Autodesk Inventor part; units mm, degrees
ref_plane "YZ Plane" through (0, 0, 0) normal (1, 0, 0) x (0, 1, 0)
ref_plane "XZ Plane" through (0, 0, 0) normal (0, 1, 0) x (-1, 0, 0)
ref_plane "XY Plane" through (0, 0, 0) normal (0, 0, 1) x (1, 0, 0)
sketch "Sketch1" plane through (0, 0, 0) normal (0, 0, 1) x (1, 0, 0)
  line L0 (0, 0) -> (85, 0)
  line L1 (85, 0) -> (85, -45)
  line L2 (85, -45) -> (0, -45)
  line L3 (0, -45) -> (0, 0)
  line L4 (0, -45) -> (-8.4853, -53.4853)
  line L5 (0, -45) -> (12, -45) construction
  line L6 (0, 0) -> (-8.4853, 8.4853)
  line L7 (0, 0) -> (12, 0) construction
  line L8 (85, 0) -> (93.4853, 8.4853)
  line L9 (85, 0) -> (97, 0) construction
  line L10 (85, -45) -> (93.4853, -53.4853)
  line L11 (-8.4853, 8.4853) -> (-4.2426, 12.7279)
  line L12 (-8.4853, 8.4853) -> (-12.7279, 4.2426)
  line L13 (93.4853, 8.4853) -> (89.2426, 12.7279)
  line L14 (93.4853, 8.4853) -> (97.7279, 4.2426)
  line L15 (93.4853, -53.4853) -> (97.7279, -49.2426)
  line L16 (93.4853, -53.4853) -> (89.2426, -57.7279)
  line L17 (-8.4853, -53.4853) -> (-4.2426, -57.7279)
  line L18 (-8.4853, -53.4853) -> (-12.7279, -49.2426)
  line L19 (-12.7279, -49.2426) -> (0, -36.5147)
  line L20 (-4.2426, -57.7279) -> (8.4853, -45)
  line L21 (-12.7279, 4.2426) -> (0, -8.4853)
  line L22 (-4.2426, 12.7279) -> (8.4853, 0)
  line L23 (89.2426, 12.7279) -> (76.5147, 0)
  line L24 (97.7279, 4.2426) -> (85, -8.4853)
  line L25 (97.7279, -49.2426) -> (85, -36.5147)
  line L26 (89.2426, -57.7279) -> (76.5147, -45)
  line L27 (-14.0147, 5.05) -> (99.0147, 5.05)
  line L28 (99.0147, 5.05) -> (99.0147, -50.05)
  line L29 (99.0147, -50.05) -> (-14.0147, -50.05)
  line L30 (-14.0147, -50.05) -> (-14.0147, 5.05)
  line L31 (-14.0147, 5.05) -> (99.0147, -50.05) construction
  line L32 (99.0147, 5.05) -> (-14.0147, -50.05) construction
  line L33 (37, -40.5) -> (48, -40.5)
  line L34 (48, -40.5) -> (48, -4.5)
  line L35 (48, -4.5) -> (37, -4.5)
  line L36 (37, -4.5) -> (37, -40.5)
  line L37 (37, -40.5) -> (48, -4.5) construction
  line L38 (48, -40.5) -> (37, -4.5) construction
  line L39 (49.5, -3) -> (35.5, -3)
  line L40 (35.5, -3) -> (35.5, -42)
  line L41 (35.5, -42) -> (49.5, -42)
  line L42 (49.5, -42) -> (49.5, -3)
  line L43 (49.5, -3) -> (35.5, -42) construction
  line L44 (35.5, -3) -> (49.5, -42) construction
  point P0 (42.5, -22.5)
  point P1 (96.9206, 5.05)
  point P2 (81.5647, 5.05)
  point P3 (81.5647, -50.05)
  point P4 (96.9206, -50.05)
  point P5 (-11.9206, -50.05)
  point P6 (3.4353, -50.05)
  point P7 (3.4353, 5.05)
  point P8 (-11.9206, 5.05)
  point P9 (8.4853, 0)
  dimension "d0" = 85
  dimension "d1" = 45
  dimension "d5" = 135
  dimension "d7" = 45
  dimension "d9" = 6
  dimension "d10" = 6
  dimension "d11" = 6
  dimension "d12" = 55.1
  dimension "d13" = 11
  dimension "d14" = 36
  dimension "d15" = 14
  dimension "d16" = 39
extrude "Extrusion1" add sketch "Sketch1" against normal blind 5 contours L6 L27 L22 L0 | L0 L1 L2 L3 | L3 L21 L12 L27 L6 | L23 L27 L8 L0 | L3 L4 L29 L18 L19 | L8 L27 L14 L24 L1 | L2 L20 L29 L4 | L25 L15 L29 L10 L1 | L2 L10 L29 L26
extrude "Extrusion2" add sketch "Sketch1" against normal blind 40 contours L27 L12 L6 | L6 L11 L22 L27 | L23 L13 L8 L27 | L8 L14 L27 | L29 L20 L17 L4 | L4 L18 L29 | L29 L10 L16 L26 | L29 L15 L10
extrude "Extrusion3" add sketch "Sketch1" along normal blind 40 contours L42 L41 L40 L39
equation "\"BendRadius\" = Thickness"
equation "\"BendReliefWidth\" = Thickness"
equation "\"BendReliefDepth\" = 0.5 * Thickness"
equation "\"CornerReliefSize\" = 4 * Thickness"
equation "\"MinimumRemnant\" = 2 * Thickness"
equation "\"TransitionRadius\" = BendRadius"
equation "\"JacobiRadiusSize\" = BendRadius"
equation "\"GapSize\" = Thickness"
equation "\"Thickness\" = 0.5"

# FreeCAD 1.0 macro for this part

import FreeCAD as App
import Part
import Sketcher

V = App.Vector
Q = App.Units.Quantity

doc = App.newDocument("Part")
params = doc.addObject("Spreadsheet::Sheet", "Params")
for row, (alias, value) in enumerate([
    ("sketch1_width", "14 mm"),
    ("sketch1_height", "39 mm"),
    ("sketch1_length", "18 mm"),
    ("pad1_length", "5 mm"),
    ("sketch2_length", "6 mm"),
    ("pad2_length", "40 mm"),
    ("sketch3_width", "14 mm"),
    ("sketch3_width2", "11 mm"),
    ("sketch3_height", "39 mm"),
    ("sketch3_height2", "36 mm"),
    ("pad3_length", "40 mm"),
], start=1):
    params.set(f"A{row}", alias)
    params.set(f"B{row}", "=" + value)
    params.setAlias(f"B{row}", alias)

body = doc.addObject("PartDesign::Body", "Body")
body.AllowCompound = True

sketch1 = body.newObject("Sketcher::SketchObject", "Sketch")
sketch1.AttachmentSupport = (doc.getObject("XY_Plane"), [""])
sketch1.MapMode = "FlatFace"
sketch1.addGeometry(Part.LineSegment(V(3.4, 5, 0), V(-11.9, 5, 0)), False)
sketch1.addGeometry(Part.LineSegment(V(-11.9, 5, 0), V(-12.7, 4.2, 0)), False)
sketch1.addGeometry(Part.LineSegment(V(-12.7, 4.2, 0), V(0, -8.5, 0)), False)
sketch1.addGeometry(Part.LineSegment(V(0, -8.5, 0), V(0, -36.5, 0)), False)
sketch1.addGeometry(Part.LineSegment(V(0, -36.5, 0), V(-12.7, -49.2, 0)), False)
sketch1.addGeometry(Part.LineSegment(V(-12.7, -49.2, 0), V(-11.9, -50, 0)), False)
sketch1.addGeometry(Part.LineSegment(V(-11.9, -50, 0), V(3.4, -50, 0)), False)
sketch1.addGeometry(Part.LineSegment(V(3.4, -50, 0), V(8.5, -45, 0)), False)
sketch1.addGeometry(Part.LineSegment(V(8.5, -45, 0), V(76.5, -45, 0)), False)
sketch1.addGeometry(Part.LineSegment(V(76.5, -45, 0), V(81.6, -50, 0)), False)
sketch1.addGeometry(Part.LineSegment(V(81.6, -50, 0), V(96.9, -50, 0)), False)
sketch1.addGeometry(Part.LineSegment(V(96.9, -50, 0), V(97.7, -49.2, 0)), False)
sketch1.addGeometry(Part.LineSegment(V(97.7, -49.2, 0), V(85, -36.5, 0)), False)
sketch1.addGeometry(Part.LineSegment(V(85, -36.5, 0), V(85, -8.5, 0)), False)
sketch1.addGeometry(Part.LineSegment(V(85, -8.5, 0), V(97.7, 4.2, 0)), False)
sketch1.addGeometry(Part.LineSegment(V(97.7, 4.2, 0), V(96.9, 5, 0)), False)
sketch1.addGeometry(Part.LineSegment(V(96.9, 5, 0), V(81.6, 5, 0)), False)
sketch1.addGeometry(Part.LineSegment(V(81.6, 5, 0), V(76.5, 0, 0)), False)
sketch1.addGeometry(Part.LineSegment(V(76.5, 0, 0), V(8.5, 0, 0)), False)
sketch1.addGeometry(Part.LineSegment(V(8.5, 0, 0), V(3.4, 5, 0)), False)
sketch1.addGeometry(Part.LineSegment(V(49.5, -3, 0), V(49.5, -42, 0)), False)
sketch1.addGeometry(Part.LineSegment(V(49.5, -42, 0), V(35.5, -42, 0)), False)
sketch1.addGeometry(Part.LineSegment(V(35.5, -42, 0), V(35.5, -3, 0)), False)
sketch1.addGeometry(Part.LineSegment(V(35.5, -3, 0), V(49.5, -3, 0)), False)
sketch1.addConstraint(Sketcher.Constraint("Coincident", 0, 2, 1, 1))
sketch1.addConstraint(Sketcher.Constraint("Coincident", 1, 2, 2, 1))
sketch1.addConstraint(Sketcher.Constraint("Coincident", 2, 2, 3, 1))
sketch1.addConstraint(Sketcher.Constraint("Coincident", 3, 2, 4, 1))
sketch1.addConstraint(Sketcher.Constraint("Coincident", 4, 2, 5, 1))
sketch1.addConstraint(Sketcher.Constraint("Coincident", 5, 2, 6, 1))
sketch1.addConstraint(Sketcher.Constraint("Coincident", 6, 2, 7, 1))
sketch1.addConstraint(Sketcher.Constraint("Coincident", 7, 2, 8, 1))
sketch1.addConstraint(Sketcher.Constraint("Coincident", 8, 2, 9, 1))
sketch1.addConstraint(Sketcher.Constraint("Coincident", 9, 2, 10, 1))
sketch1.addConstraint(Sketcher.Constraint("Coincident", 10, 2, 11, 1))
sketch1.addConstraint(Sketcher.Constraint("Coincident", 11, 2, 12, 1))
sketch1.addConstraint(Sketcher.Constraint("Coincident", 12, 2, 13, 1))
sketch1.addConstraint(Sketcher.Constraint("Coincident", 13, 2, 14, 1))
sketch1.addConstraint(Sketcher.Constraint("Coincident", 14, 2, 15, 1))
sketch1.addConstraint(Sketcher.Constraint("Coincident", 15, 2, 16, 1))
sketch1.addConstraint(Sketcher.Constraint("Coincident", 16, 2, 17, 1))
sketch1.addConstraint(Sketcher.Constraint("Coincident", 17, 2, 18, 1))
sketch1.addConstraint(Sketcher.Constraint("Coincident", 18, 2, 19, 1))
sketch1.addConstraint(Sketcher.Constraint("Coincident", 19, 2, 0, 1))
sketch1.addConstraint(Sketcher.Constraint("Coincident", 20, 2, 21, 1))
sketch1.addConstraint(Sketcher.Constraint("Coincident", 21, 2, 22, 1))
sketch1.addConstraint(Sketcher.Constraint("Coincident", 22, 2, 23, 1))
sketch1.addConstraint(Sketcher.Constraint("Coincident", 23, 2, 20, 1))
sketch1.addConstraint(Sketcher.Constraint("Horizontal", 0))
sketch1.addConstraint(Sketcher.Constraint("Vertical", 3))
sketch1.addConstraint(Sketcher.Constraint("Horizontal", 6))
sketch1.addConstraint(Sketcher.Constraint("Horizontal", 8))
sketch1.addConstraint(Sketcher.Constraint("Horizontal", 10))
sketch1.addConstraint(Sketcher.Constraint("Vertical", 13))
sketch1.addConstraint(Sketcher.Constraint("Horizontal", 16))
sketch1.addConstraint(Sketcher.Constraint("Horizontal", 18))
sketch1.addConstraint(Sketcher.Constraint("Vertical", 20))
sketch1.addConstraint(Sketcher.Constraint("Horizontal", 21))
sketch1.addConstraint(Sketcher.Constraint("Vertical", 22))
sketch1.addConstraint(Sketcher.Constraint("Horizontal", 23))
sketch1.addConstraint(Sketcher.Constraint("PointOnObject", 2, 2, -2))
sketch1.addConstraint(Sketcher.Constraint("PointOnObject", 17, 2, -1))
sketch1.addConstraint(Sketcher.Constraint("Perpendicular", 1, 2))
sketch1.addConstraint(Sketcher.Constraint("Perpendicular", 2, 4))
sketch1.addConstraint(Sketcher.Constraint("Perpendicular", 4, 5))
sketch1.addConstraint(Sketcher.Constraint("Perpendicular", 5, 7))
sketch1.addConstraint(Sketcher.Constraint("Perpendicular", 7, 9))
sketch1.addConstraint(Sketcher.Constraint("Perpendicular", 9, 11))
sketch1.addConstraint(Sketcher.Constraint("Perpendicular", 11, 12))
sketch1.addConstraint(Sketcher.Constraint("Perpendicular", 12, 14))
sketch1.addConstraint(Sketcher.Constraint("Perpendicular", 14, 15))
sketch1.addConstraint(Sketcher.Constraint("Perpendicular", 15, 17))
sketch1.addConstraint(Sketcher.Constraint("Perpendicular", 17, 19))
sketch1.addConstraint(Sketcher.Constraint("Horizontal", 6, 2, 9, 2))
sketch1.addConstraint(Sketcher.Constraint("Horizontal", 4, 2, 11, 2))
sketch1.addConstraint(Sketcher.Constraint("Horizontal", 3, 2, 12, 2))
sketch1.addConstraint(Sketcher.Constraint("Horizontal", 2, 2, 13, 2))
sketch1.addConstraint(Sketcher.Constraint("Horizontal", 1, 2, 14, 2))
sketch1.addConstraint(Sketcher.Constraint("Horizontal", 0, 2, 15, 2))
sketch1.addConstraint(Sketcher.Constraint("Vertical", 1, 2, 4, 2))
sketch1.addConstraint(Sketcher.Constraint("Vertical", 0, 2, 5, 2))
sketch1.addConstraint(Sketcher.Constraint("Vertical", 11, 2, 14, 2))
sketch1.addConstraint(Sketcher.Constraint("Vertical", 9, 2, 16, 2))
sketch1.addConstraint(Sketcher.Constraint("Vertical", 8, 2, 17, 2))
sketch1.addConstraint(Sketcher.Constraint("Vertical", 7, 2, 18, 2))
sketch1.addConstraint(Sketcher.Constraint("Equal", 6, 10))
sketch1.addConstraint(Sketcher.Constraint("DistanceX", 21, 2, 21, 1, Q("14 mm")))
sketch1.addConstraint(Sketcher.Constraint("DistanceY", 20, 2, 20, 1, Q("39 mm")))
sketch1.addConstraint(Sketcher.Constraint("DistanceY", 7, 2, -1, 1, Q("45 mm")))
sketch1.addConstraint(Sketcher.Constraint("DistanceX", -1, 1, 12, 2, Q("85 mm")))
sketch1.addConstraint(Sketcher.Constraint("DistanceY", 5, 2, 0, 2, Q("55.1 mm")))
sketch1.addConstraint(Sketcher.Constraint("Distance", 2, Q("18 mm")))
sketch1.addConstraint(Sketcher.Constraint("DistanceY", 20, 2, -1, 1, Q("42 mm")))
sketch1.addConstraint(Sketcher.Constraint("DistanceX", -1, 1, 20, 2, Q("49.5 mm")))
sketch1.addConstraint(Sketcher.Constraint("DistanceX", 0, 2, 0, 1, Q("15.3558 mm")))
sketch1.addConstraint(Sketcher.Constraint("DistanceX", 8, 1, 8, 2, Q("68.0294 mm")))
sketch1.setExpression("Constraints[62]", "Params.sketch1_width")
sketch1.setExpression("Constraints[63]", "Params.sketch1_height")
sketch1.setExpression("Constraints[67]", "Params.sketch1_length")
pad1 = body.newObject("PartDesign::Pad", "Pad")
pad1.Profile = sketch1
pad1.setExpression("Length", "Params.pad1_length")
pad1.Reversed = True

sketch2 = body.newObject("Sketcher::SketchObject", "Sketch001")
sketch2.AttachmentSupport = (doc.getObject("XY_Plane"), [""])
sketch2.MapMode = "FlatFace"
sketch2.addGeometry(Part.LineSegment(V(-11.9, 5, 0), V(3.4, 5, 0)), False)
sketch2.addGeometry(Part.LineSegment(V(3.4, 5, 0), V(-4.2, 12.7, 0)), False)
sketch2.addGeometry(Part.LineSegment(V(-4.2, 12.7, 0), V(-8.5, 8.5, 0)), False)
sketch2.addGeometry(Part.LineSegment(V(-8.5, 8.5, 0), V(-11.9, 5, 0)), False)
sketch2.addGeometry(Part.LineSegment(V(89.2, 12.7, 0), V(81.6, 5, 0)), False)
sketch2.addGeometry(Part.LineSegment(V(81.6, 5, 0), V(96.9, 5, 0)), False)
sketch2.addGeometry(Part.LineSegment(V(96.9, 5, 0), V(93.5, 8.5, 0)), False)
sketch2.addGeometry(Part.LineSegment(V(93.5, 8.5, 0), V(89.2, 12.7, 0)), False)
sketch2.addGeometry(Part.LineSegment(V(3.4, -50, 0), V(-11.9, -50, 0)), False)
sketch2.addGeometry(Part.LineSegment(V(-11.9, -50, 0), V(-8.5, -53.5, 0)), False)
sketch2.addGeometry(Part.LineSegment(V(-8.5, -53.5, 0), V(-4.2, -57.7, 0)), False)
sketch2.addGeometry(Part.LineSegment(V(-4.2, -57.7, 0), V(3.4, -50, 0)), False)
sketch2.addGeometry(Part.LineSegment(V(81.6, -50, 0), V(89.2, -57.7, 0)), False)
sketch2.addGeometry(Part.LineSegment(V(89.2, -57.7, 0), V(93.5, -53.5, 0)), False)
sketch2.addGeometry(Part.LineSegment(V(93.5, -53.5, 0), V(96.9, -50, 0)), False)
sketch2.addGeometry(Part.LineSegment(V(96.9, -50, 0), V(81.6, -50, 0)), False)
sketch2.addConstraint(Sketcher.Constraint("Coincident", 0, 2, 1, 1))
sketch2.addConstraint(Sketcher.Constraint("Coincident", 1, 2, 2, 1))
sketch2.addConstraint(Sketcher.Constraint("Coincident", 2, 2, 3, 1))
sketch2.addConstraint(Sketcher.Constraint("Coincident", 3, 2, 0, 1))
sketch2.addConstraint(Sketcher.Constraint("Coincident", 4, 2, 5, 1))
sketch2.addConstraint(Sketcher.Constraint("Coincident", 5, 2, 6, 1))
sketch2.addConstraint(Sketcher.Constraint("Coincident", 6, 2, 7, 1))
sketch2.addConstraint(Sketcher.Constraint("Coincident", 7, 2, 4, 1))
sketch2.addConstraint(Sketcher.Constraint("Coincident", 8, 2, 9, 1))
sketch2.addConstraint(Sketcher.Constraint("Coincident", 9, 2, 10, 1))
sketch2.addConstraint(Sketcher.Constraint("Coincident", 10, 2, 11, 1))
sketch2.addConstraint(Sketcher.Constraint("Coincident", 11, 2, 8, 1))
sketch2.addConstraint(Sketcher.Constraint("Coincident", 12, 2, 13, 1))
sketch2.addConstraint(Sketcher.Constraint("Coincident", 13, 2, 14, 1))
sketch2.addConstraint(Sketcher.Constraint("Coincident", 14, 2, 15, 1))
sketch2.addConstraint(Sketcher.Constraint("Coincident", 15, 2, 12, 1))
sketch2.addConstraint(Sketcher.Constraint("Horizontal", 0))
sketch2.addConstraint(Sketcher.Constraint("Horizontal", 5))
sketch2.addConstraint(Sketcher.Constraint("Horizontal", 8))
sketch2.addConstraint(Sketcher.Constraint("Horizontal", 15))
sketch2.addConstraint(Sketcher.Constraint("Perpendicular", 1, 2))
sketch2.addConstraint(Sketcher.Constraint("Parallel", 2, 3))
sketch2.addConstraint(Sketcher.Constraint("Parallel", 3, 4))
sketch2.addConstraint(Sketcher.Constraint("Perpendicular", 4, 6))
sketch2.addConstraint(Sketcher.Constraint("Parallel", 6, 7))
sketch2.addConstraint(Sketcher.Constraint("Parallel", 7, 9))
sketch2.addConstraint(Sketcher.Constraint("Parallel", 9, 10))
sketch2.addConstraint(Sketcher.Constraint("Perpendicular", 10, 11))
sketch2.addConstraint(Sketcher.Constraint("Perpendicular", 11, 12))
sketch2.addConstraint(Sketcher.Constraint("Perpendicular", 12, 13))
sketch2.addConstraint(Sketcher.Constraint("Parallel", 13, 14))
sketch2.addConstraint(Sketcher.Constraint("Horizontal", 3, 2, 4, 2))
sketch2.addConstraint(Sketcher.Constraint("Horizontal", 2, 2, 6, 2))
sketch2.addConstraint(Sketcher.Constraint("Horizontal", 1, 2, 7, 2))
sketch2.addConstraint(Sketcher.Constraint("Horizontal", 10, 2, 12, 2))
sketch2.addConstraint(Sketcher.Constraint("Horizontal", 9, 2, 13, 2))
sketch2.addConstraint(Sketcher.Constraint("Horizontal", 11, 2, 14, 2))
sketch2.addConstraint(Sketcher.Constraint("Vertical", 3, 2, 8, 2))
sketch2.addConstraint(Sketcher.Constraint("Vertical", 2, 2, 9, 2))
sketch2.addConstraint(Sketcher.Constraint("Vertical", 1, 2, 10, 2))
sketch2.addConstraint(Sketcher.Constraint("Vertical", 0, 2, 11, 2))
sketch2.addConstraint(Sketcher.Constraint("Vertical", 7, 2, 12, 2))
sketch2.addConstraint(Sketcher.Constraint("Distance", 2, Q("6 mm")))
sketch2.addConstraint(Sketcher.Constraint("DistanceY", 8, 2, 3, 2, Q("55.1 mm")))
sketch2.addConstraint(Sketcher.Constraint("DistanceY", -1, 1, 0, 2, Q("5.05 mm")))
sketch2.addConstraint(Sketcher.Constraint("DistanceX", 2, 2, 4, 2, Q("90.05 mm")))
sketch2.addConstraint(Sketcher.Constraint("DistanceX", 0, 1, 0, 2, Q("15.3558 mm")))
sketch2.addConstraint(Sketcher.Constraint("DistanceX", -1, 1, 0, 2, Q("3.4353 mm")))
sketch2.setExpression("Constraints[42]", "Params.sketch2_length")
pad2 = body.newObject("PartDesign::Pad", "Pad001")
pad2.Profile = sketch2
pad2.setExpression("Length", "Params.pad2_length")
pad2.Reversed = True

sketch3 = body.newObject("Sketcher::SketchObject", "Sketch002")
sketch3.AttachmentSupport = (doc.getObject("XY_Plane"), [""])
sketch3.MapMode = "FlatFace"
sketch3.addGeometry(Part.LineSegment(V(50, -42, 0), V(50, -3, 0)), False)
sketch3.addGeometry(Part.LineSegment(V(50, -3, 0), V(36, -3, 0)), False)
sketch3.addGeometry(Part.LineSegment(V(36, -3, 0), V(36, -42, 0)), False)
sketch3.addGeometry(Part.LineSegment(V(36, -42, 0), V(50, -42, 0)), False)
sketch3.addGeometry(Part.LineSegment(V(48, -40, 0), V(37, -40, 0)), False)
sketch3.addGeometry(Part.LineSegment(V(37, -40, 0), V(37, -4, 0)), False)
sketch3.addGeometry(Part.LineSegment(V(37, -4, 0), V(48, -4, 0)), False)
sketch3.addGeometry(Part.LineSegment(V(48, -4, 0), V(48, -40, 0)), False)
sketch3.addConstraint(Sketcher.Constraint("Coincident", 0, 2, 1, 1))
sketch3.addConstraint(Sketcher.Constraint("Coincident", 1, 2, 2, 1))
sketch3.addConstraint(Sketcher.Constraint("Coincident", 2, 2, 3, 1))
sketch3.addConstraint(Sketcher.Constraint("Coincident", 3, 2, 0, 1))
sketch3.addConstraint(Sketcher.Constraint("Coincident", 4, 2, 5, 1))
sketch3.addConstraint(Sketcher.Constraint("Coincident", 5, 2, 6, 1))
sketch3.addConstraint(Sketcher.Constraint("Coincident", 6, 2, 7, 1))
sketch3.addConstraint(Sketcher.Constraint("Coincident", 7, 2, 4, 1))
sketch3.addConstraint(Sketcher.Constraint("Vertical", 0))
sketch3.addConstraint(Sketcher.Constraint("Horizontal", 1))
sketch3.addConstraint(Sketcher.Constraint("Vertical", 2))
sketch3.addConstraint(Sketcher.Constraint("Horizontal", 3))
sketch3.addConstraint(Sketcher.Constraint("Horizontal", 4))
sketch3.addConstraint(Sketcher.Constraint("Vertical", 5))
sketch3.addConstraint(Sketcher.Constraint("Horizontal", 6))
sketch3.addConstraint(Sketcher.Constraint("Vertical", 7))
sketch3.addConstraint(Sketcher.Constraint("DistanceX", 1, 2, 1, 1, Q("14 mm")))
sketch3.addConstraint(Sketcher.Constraint("DistanceX", 4, 2, 4, 1, Q("11 mm")))
sketch3.addConstraint(Sketcher.Constraint("DistanceY", 0, 1, 0, 2, Q("39 mm")))
sketch3.addConstraint(Sketcher.Constraint("DistanceY", 5, 1, 5, 2, Q("36 mm")))
sketch3.addConstraint(Sketcher.Constraint("DistanceY", 0, 2, -1, 1, Q("3 mm")))
sketch3.addConstraint(Sketcher.Constraint("DistanceX", -1, 1, 4, 2, Q("37 mm")))
sketch3.addConstraint(Sketcher.Constraint("DistanceX", -1, 1, 0, 2, Q("49.5 mm")))
sketch3.addConstraint(Sketcher.Constraint("DistanceY", 4, 2, -1, 1, Q("40.5 mm")))
sketch3.setExpression("Constraints[16]", "Params.sketch3_width")
sketch3.setExpression("Constraints[17]", "Params.sketch3_width2")
sketch3.setExpression("Constraints[18]", "Params.sketch3_height")
sketch3.setExpression("Constraints[19]", "Params.sketch3_height2")
pad3 = body.newObject("PartDesign::Pad", "Pad002")
pad3.Profile = sketch3
pad3.setExpression("Length", "Params.pad3_length")

doc.recompute()
